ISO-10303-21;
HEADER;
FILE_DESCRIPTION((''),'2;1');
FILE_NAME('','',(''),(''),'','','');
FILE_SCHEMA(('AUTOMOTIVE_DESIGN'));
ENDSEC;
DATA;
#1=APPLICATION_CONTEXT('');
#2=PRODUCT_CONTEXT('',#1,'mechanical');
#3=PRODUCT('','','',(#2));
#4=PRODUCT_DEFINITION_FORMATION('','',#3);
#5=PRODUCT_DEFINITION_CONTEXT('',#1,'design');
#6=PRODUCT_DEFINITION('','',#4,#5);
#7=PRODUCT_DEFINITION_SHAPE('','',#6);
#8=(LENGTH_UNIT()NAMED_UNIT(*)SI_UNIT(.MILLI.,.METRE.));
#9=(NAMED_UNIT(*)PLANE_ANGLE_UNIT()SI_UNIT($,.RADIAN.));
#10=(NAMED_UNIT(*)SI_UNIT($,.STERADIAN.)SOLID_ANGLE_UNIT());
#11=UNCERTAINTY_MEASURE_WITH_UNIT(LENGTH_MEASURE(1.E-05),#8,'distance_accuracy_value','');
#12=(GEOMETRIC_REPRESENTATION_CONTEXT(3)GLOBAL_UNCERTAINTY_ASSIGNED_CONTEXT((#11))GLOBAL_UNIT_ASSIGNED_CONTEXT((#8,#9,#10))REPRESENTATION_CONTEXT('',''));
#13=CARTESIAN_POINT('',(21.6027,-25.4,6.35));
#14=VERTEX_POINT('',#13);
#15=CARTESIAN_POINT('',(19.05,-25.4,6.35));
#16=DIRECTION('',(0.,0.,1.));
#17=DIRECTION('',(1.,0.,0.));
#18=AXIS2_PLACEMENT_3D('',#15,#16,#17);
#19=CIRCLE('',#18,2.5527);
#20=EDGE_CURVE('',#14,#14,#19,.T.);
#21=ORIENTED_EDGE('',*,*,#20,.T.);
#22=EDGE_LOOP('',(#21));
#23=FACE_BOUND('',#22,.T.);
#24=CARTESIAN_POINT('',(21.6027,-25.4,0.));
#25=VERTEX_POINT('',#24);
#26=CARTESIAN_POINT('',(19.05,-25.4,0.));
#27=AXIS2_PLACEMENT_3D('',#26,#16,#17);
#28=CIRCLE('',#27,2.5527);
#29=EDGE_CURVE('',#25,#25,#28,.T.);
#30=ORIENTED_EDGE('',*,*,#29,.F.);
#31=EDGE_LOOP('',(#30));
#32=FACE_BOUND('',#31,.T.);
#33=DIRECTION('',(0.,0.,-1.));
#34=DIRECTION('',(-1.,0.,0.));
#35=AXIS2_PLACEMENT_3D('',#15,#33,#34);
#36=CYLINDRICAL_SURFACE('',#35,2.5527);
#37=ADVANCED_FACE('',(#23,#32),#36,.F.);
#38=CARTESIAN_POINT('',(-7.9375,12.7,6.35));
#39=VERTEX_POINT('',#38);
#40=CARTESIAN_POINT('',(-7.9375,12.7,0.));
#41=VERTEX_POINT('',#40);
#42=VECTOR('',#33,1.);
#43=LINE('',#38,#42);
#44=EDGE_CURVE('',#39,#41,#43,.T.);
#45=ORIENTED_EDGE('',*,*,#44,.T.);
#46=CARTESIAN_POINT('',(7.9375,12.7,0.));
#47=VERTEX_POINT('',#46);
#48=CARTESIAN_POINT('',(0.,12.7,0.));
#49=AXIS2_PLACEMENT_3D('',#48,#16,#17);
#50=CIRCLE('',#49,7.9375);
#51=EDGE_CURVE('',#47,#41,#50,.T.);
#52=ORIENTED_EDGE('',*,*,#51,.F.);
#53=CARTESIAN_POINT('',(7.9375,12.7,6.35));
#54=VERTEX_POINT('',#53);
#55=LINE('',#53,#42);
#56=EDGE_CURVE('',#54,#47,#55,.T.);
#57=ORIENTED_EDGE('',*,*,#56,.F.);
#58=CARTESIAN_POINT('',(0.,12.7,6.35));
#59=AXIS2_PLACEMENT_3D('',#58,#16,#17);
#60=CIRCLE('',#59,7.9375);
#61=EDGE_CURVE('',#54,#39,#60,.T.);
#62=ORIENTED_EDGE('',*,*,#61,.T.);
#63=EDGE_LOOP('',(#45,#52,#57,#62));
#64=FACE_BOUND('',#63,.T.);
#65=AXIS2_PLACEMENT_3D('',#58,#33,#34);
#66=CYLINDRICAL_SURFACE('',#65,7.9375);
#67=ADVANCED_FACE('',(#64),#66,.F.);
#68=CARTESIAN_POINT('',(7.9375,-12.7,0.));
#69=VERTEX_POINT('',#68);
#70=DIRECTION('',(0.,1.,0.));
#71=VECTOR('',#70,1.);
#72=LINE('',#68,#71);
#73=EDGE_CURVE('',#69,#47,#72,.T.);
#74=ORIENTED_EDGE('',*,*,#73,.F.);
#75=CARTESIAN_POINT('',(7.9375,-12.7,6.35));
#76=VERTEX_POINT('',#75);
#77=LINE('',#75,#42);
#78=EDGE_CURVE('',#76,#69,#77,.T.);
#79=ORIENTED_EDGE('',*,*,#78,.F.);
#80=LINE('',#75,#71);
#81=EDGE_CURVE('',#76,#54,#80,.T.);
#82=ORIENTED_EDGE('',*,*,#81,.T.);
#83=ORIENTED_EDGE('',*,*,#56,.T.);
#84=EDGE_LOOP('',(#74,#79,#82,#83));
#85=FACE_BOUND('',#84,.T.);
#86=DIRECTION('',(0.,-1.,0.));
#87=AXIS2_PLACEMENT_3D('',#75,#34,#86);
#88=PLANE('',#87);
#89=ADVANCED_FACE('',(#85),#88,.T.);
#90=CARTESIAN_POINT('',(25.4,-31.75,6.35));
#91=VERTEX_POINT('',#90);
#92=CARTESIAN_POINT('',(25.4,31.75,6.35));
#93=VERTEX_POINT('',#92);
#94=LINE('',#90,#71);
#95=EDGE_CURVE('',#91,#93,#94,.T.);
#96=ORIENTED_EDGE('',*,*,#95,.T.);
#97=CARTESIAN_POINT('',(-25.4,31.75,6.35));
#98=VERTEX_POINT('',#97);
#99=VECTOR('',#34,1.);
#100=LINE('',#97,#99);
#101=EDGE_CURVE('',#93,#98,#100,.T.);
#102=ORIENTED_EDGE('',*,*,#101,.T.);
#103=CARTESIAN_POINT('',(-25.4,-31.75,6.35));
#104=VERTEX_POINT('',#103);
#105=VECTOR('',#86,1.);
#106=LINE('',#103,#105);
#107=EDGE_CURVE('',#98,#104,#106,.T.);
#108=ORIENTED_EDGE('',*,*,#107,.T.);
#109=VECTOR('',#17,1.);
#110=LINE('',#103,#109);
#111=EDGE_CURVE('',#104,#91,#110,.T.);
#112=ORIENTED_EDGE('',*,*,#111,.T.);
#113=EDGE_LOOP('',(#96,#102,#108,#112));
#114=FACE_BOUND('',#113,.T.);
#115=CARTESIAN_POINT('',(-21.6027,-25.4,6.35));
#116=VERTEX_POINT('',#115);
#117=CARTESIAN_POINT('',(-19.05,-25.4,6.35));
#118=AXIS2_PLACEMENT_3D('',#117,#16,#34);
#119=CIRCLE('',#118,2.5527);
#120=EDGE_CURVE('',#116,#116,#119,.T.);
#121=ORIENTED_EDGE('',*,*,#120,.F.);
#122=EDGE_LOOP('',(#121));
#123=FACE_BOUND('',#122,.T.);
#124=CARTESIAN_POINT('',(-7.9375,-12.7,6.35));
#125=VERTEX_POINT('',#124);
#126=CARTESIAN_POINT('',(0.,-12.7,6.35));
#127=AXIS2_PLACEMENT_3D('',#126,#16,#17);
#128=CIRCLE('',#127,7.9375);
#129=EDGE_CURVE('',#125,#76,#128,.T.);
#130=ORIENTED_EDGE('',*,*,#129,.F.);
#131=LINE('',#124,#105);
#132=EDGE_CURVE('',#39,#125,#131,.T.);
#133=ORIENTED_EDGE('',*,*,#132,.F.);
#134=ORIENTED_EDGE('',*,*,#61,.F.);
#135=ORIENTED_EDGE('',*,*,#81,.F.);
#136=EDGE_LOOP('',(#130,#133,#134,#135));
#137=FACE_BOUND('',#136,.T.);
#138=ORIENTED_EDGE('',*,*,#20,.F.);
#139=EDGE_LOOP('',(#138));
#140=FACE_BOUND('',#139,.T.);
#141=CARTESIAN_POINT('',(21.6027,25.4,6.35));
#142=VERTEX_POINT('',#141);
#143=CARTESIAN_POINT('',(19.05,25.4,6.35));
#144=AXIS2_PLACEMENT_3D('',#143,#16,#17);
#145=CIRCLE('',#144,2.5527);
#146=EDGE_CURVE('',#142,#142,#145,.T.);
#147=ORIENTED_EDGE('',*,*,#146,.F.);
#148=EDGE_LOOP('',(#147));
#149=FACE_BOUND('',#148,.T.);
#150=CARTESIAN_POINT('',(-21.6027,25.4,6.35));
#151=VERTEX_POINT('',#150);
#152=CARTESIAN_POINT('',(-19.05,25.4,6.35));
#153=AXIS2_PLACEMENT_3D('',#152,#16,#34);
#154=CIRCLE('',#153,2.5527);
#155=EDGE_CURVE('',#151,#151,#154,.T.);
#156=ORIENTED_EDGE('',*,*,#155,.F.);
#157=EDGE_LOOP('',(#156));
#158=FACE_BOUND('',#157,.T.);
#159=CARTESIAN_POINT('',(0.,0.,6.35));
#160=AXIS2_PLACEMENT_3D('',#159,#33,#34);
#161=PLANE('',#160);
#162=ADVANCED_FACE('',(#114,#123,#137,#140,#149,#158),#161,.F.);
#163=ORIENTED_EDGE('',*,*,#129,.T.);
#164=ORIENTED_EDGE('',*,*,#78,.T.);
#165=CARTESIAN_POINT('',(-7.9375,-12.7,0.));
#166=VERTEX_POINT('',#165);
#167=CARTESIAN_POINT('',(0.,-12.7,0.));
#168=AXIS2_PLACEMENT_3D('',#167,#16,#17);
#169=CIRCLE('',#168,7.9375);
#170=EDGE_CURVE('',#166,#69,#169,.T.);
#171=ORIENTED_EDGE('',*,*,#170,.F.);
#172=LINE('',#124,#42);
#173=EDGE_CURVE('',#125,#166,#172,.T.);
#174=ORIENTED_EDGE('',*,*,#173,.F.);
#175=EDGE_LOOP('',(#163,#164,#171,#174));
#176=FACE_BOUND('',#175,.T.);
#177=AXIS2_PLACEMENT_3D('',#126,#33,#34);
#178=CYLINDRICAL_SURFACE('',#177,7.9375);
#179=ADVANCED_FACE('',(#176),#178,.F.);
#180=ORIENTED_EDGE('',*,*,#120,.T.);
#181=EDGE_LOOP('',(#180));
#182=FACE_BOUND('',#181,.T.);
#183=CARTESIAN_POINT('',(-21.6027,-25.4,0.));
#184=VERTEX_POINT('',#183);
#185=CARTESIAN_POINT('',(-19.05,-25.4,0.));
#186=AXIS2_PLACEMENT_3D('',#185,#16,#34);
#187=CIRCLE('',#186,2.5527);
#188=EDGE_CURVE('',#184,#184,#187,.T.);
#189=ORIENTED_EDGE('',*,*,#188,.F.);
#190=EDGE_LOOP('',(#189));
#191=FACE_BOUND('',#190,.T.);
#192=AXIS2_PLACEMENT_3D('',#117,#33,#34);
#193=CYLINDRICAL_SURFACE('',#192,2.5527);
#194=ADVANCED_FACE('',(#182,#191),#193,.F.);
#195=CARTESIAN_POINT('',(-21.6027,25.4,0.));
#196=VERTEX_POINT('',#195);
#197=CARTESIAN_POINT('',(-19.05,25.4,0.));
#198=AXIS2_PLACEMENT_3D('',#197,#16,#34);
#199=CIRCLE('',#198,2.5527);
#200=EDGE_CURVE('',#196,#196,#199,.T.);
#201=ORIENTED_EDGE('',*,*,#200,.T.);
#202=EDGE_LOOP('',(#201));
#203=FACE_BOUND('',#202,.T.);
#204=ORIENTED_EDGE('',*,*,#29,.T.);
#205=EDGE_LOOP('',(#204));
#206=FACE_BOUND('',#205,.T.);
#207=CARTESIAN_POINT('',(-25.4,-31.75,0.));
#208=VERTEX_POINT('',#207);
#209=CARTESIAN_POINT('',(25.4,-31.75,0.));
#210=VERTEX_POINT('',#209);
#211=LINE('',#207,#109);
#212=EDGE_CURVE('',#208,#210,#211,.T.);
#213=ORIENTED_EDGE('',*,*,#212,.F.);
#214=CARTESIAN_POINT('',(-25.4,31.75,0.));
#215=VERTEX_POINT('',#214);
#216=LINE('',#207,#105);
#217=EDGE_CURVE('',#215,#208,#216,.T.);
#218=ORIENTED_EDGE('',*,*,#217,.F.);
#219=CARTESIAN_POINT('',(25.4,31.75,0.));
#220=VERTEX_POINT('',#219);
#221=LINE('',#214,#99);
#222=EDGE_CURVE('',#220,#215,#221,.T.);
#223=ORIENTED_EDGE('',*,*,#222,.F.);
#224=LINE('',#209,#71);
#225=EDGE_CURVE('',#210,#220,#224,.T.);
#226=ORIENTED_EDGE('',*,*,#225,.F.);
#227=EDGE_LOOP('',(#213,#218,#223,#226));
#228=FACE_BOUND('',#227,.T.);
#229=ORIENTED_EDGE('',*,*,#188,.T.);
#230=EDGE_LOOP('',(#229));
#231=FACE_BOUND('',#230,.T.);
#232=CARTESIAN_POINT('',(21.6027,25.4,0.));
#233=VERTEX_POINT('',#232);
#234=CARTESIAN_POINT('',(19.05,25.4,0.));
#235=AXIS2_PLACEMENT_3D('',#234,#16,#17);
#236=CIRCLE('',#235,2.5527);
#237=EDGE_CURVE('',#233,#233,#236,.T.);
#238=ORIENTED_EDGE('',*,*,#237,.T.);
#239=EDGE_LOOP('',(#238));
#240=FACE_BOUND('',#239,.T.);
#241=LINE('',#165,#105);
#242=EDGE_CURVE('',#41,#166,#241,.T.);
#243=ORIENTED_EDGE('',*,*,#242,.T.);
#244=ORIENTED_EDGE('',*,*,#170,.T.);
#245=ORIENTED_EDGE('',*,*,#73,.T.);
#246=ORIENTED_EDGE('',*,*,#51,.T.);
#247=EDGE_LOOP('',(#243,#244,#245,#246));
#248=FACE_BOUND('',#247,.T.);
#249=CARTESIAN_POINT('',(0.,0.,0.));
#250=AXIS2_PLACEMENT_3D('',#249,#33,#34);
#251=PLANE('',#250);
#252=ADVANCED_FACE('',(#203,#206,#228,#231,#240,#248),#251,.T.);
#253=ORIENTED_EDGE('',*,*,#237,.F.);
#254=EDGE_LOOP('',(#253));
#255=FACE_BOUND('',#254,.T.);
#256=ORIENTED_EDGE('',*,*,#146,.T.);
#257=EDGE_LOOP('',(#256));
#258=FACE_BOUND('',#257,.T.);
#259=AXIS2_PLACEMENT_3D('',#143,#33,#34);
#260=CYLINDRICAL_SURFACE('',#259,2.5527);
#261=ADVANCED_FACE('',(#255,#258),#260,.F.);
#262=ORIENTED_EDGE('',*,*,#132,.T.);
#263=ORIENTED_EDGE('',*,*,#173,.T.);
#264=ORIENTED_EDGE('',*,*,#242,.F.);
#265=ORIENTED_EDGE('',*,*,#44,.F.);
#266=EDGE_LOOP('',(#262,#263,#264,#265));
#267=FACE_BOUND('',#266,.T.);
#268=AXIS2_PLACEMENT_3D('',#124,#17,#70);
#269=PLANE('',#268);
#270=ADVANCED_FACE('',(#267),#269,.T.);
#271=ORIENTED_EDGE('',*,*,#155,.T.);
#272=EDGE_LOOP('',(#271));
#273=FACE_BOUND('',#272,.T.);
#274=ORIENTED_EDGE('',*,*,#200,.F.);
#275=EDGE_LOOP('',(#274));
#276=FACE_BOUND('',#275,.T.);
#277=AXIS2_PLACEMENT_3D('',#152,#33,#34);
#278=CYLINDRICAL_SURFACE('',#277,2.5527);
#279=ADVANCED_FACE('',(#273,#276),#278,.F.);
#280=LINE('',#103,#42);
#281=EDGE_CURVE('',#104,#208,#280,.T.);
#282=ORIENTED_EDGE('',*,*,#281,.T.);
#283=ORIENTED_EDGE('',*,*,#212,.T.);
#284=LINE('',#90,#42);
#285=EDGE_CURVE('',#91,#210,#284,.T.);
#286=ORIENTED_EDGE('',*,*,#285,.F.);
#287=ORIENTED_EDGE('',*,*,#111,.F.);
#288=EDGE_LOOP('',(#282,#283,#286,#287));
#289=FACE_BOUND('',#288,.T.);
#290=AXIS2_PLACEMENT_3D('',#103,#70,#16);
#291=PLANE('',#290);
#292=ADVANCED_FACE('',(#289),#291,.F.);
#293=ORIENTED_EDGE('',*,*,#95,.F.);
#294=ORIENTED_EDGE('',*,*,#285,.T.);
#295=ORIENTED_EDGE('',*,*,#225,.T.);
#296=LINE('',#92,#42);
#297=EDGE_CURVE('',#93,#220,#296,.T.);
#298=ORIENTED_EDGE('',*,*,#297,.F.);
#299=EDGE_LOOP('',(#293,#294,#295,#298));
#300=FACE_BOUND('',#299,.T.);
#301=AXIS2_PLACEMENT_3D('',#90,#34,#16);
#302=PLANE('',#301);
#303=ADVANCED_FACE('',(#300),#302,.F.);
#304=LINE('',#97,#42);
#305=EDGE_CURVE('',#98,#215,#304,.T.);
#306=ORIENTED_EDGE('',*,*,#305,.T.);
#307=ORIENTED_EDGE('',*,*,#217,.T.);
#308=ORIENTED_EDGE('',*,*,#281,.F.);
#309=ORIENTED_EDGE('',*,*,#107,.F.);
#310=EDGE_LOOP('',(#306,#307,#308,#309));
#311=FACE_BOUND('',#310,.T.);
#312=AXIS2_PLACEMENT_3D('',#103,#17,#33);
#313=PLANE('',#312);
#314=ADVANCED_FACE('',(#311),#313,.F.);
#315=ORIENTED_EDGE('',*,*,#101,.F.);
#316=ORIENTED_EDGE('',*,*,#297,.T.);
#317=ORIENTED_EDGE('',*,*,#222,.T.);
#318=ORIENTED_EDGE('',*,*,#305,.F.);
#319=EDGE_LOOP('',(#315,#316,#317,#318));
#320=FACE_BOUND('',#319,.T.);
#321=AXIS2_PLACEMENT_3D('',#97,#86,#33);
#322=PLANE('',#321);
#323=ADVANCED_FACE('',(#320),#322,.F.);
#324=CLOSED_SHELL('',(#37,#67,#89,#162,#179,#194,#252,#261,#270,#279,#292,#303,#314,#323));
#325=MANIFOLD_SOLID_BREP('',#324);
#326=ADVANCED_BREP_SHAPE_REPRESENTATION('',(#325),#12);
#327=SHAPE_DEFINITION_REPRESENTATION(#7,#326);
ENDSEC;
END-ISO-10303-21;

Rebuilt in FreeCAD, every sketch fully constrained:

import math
import FreeCAD as App
import Part
import Sketcher

V = App.Vector
Q = App.Units.Quantity

doc = App.newDocument("Part")
params = doc.addObject("Spreadsheet::Sheet", "Params")
for row, (alias, value) in enumerate([
    ("sketch1_width", "2 in"),
    ("sketch1_height", "1 in"),
    ("sketch1_diameter", "0.201 in"),
    ("sketch1_height2", "2.5 in"),
    ("sketch1_radius", "0.3125 in"),
    ("pad1_length", "0.25 in"),
], start=1):
    params.set(f"A{row}", alias)
    params.set(f"B{row}", "=" + value)
    params.setAlias(f"B{row}", alias)

body = doc.addObject("PartDesign::Body", "Body")

# Sketch on XY plane
sketch1 = doc.addObject("Sketcher::SketchObject", "Sketch")
body.addObject(sketch1)
sketch1.AttachmentSupport = (doc.XY_Plane, [""])
sketch1.MapMode = "FlatFace"
sketch1.addGeometry([
    Part.LineSegment(V(-25.4, 31.8, 0), V(-25.4, -31.8, 0)),  # 0
    Part.LineSegment(V(-25.4, -31.8, 0), V(25.4, -31.8, 0)),  # 1
    Part.LineSegment(V(25.4, -31.8, 0), V(25.4, 31.8, 0)),  # 2
    Part.LineSegment(V(25.4, 31.8, 0), V(-25.4, 31.8, 0)),  # 3
    Part.Circle(V(-19.1, -25.4, 0), V(0, 0, 1), 2.6),  # 4
    Part.Circle(V(19.1, -25.4, 0), V(0, 0, 1), 2.6),  # 5
    Part.Circle(V(-19.1, 25.4, 0), V(0, 0, 1), 2.6),  # 6
    Part.ArcOfCircle(Part.Circle(V(0, -12.7, 0), V(0, 0, 1), 7.9), math.radians(180), math.radians(360)),  # 7
    Part.LineSegment(V(-7.9, -12.7, 0), V(-7.9, 12.7, 0)),  # 8
    Part.ArcOfCircle(Part.Circle(V(0, 12.7, 0), V(0, 0, 1), 7.9), math.radians(0), math.radians(180)),  # 9
    Part.LineSegment(V(7.9, 12.7, 0), V(7.9, -12.7, 0)),  # 10
    Part.Circle(V(19.1, 25.4, 0), V(0, 0, 1), 2.6),  # 11
], False)
sketch1.addConstraint([
    Sketcher.Constraint("Coincident", 0, 2, 1, 1),
    Sketcher.Constraint("Coincident", 1, 2, 2, 1),
    Sketcher.Constraint("Coincident", 2, 2, 3, 1),
    Sketcher.Constraint("Coincident", 3, 2, 0, 1),
    Sketcher.Constraint("Tangent", 7, 1, 8, 1),
    Sketcher.Constraint("Tangent", 8, 2, 9, 2),
    Sketcher.Constraint("Tangent", 9, 1, 10, 1),
    Sketcher.Constraint("Tangent", 10, 2, 7, 2),
    Sketcher.Constraint("Vertical", 0),
    Sketcher.Constraint("Horizontal", 1),
    Sketcher.Constraint("Vertical", 2),
    Sketcher.Constraint("Horizontal", 3),
    Sketcher.Constraint("Vertical", 8),
    Sketcher.Constraint("Vertical", 10),
    Sketcher.Constraint("Equal", 4, 5),
    Sketcher.Constraint("Equal", 5, 6),
    Sketcher.Constraint("Equal", 6, 11),
    Sketcher.Constraint("Symmetric", 5, 3, 6, 3, -1, 1),
    Sketcher.Constraint("Symmetric", 7, 3, 9, 3, -1, 1),
    Sketcher.Constraint("Symmetric", 4, 3, 11, 3, -1, 1),
    Sketcher.Constraint("Symmetric", 0, 2, 2, 2, -1, 1),
    Sketcher.Constraint("Symmetric", 4, 3, 5, 3, -2),
    Sketcher.Constraint("DistanceX", 1, 1, 1, 2, Q("2 in")),
    Sketcher.Constraint("DistanceY", 8, 1, 8, 2, Q("1 in")),
    Sketcher.Constraint("Diameter", 4, Q("0.201 in")),
    Sketcher.Constraint("DistanceY", 0, 2, 0, 1, Q("2.5 in")),
    Sketcher.Constraint("DistanceY", 4, 3, -1, 1, Q("1 in")),
    Sketcher.Constraint("Radius", 7, Q("0.3125 in")),
    Sketcher.Constraint("DistanceX", 4, 3, 5, 3, Q("1.5 in")),
])
sketch1.setExpression("Constraints[22]", "Params.sketch1_width")
sketch1.setExpression("Constraints[23]", "Params.sketch1_height")
sketch1.setExpression("Constraints[24]", "Params.sketch1_diameter")
sketch1.setExpression("Constraints[25]", "Params.sketch1_height2")
sketch1.setExpression("Constraints[27]", "Params.sketch1_radius")
pad1 = doc.addObject("PartDesign::Pad", "Pad")
body.addObject(pad1)
pad1.Profile = sketch1
pad1.setExpression("Length", "Params.pad1_length")

doc.recompute()
